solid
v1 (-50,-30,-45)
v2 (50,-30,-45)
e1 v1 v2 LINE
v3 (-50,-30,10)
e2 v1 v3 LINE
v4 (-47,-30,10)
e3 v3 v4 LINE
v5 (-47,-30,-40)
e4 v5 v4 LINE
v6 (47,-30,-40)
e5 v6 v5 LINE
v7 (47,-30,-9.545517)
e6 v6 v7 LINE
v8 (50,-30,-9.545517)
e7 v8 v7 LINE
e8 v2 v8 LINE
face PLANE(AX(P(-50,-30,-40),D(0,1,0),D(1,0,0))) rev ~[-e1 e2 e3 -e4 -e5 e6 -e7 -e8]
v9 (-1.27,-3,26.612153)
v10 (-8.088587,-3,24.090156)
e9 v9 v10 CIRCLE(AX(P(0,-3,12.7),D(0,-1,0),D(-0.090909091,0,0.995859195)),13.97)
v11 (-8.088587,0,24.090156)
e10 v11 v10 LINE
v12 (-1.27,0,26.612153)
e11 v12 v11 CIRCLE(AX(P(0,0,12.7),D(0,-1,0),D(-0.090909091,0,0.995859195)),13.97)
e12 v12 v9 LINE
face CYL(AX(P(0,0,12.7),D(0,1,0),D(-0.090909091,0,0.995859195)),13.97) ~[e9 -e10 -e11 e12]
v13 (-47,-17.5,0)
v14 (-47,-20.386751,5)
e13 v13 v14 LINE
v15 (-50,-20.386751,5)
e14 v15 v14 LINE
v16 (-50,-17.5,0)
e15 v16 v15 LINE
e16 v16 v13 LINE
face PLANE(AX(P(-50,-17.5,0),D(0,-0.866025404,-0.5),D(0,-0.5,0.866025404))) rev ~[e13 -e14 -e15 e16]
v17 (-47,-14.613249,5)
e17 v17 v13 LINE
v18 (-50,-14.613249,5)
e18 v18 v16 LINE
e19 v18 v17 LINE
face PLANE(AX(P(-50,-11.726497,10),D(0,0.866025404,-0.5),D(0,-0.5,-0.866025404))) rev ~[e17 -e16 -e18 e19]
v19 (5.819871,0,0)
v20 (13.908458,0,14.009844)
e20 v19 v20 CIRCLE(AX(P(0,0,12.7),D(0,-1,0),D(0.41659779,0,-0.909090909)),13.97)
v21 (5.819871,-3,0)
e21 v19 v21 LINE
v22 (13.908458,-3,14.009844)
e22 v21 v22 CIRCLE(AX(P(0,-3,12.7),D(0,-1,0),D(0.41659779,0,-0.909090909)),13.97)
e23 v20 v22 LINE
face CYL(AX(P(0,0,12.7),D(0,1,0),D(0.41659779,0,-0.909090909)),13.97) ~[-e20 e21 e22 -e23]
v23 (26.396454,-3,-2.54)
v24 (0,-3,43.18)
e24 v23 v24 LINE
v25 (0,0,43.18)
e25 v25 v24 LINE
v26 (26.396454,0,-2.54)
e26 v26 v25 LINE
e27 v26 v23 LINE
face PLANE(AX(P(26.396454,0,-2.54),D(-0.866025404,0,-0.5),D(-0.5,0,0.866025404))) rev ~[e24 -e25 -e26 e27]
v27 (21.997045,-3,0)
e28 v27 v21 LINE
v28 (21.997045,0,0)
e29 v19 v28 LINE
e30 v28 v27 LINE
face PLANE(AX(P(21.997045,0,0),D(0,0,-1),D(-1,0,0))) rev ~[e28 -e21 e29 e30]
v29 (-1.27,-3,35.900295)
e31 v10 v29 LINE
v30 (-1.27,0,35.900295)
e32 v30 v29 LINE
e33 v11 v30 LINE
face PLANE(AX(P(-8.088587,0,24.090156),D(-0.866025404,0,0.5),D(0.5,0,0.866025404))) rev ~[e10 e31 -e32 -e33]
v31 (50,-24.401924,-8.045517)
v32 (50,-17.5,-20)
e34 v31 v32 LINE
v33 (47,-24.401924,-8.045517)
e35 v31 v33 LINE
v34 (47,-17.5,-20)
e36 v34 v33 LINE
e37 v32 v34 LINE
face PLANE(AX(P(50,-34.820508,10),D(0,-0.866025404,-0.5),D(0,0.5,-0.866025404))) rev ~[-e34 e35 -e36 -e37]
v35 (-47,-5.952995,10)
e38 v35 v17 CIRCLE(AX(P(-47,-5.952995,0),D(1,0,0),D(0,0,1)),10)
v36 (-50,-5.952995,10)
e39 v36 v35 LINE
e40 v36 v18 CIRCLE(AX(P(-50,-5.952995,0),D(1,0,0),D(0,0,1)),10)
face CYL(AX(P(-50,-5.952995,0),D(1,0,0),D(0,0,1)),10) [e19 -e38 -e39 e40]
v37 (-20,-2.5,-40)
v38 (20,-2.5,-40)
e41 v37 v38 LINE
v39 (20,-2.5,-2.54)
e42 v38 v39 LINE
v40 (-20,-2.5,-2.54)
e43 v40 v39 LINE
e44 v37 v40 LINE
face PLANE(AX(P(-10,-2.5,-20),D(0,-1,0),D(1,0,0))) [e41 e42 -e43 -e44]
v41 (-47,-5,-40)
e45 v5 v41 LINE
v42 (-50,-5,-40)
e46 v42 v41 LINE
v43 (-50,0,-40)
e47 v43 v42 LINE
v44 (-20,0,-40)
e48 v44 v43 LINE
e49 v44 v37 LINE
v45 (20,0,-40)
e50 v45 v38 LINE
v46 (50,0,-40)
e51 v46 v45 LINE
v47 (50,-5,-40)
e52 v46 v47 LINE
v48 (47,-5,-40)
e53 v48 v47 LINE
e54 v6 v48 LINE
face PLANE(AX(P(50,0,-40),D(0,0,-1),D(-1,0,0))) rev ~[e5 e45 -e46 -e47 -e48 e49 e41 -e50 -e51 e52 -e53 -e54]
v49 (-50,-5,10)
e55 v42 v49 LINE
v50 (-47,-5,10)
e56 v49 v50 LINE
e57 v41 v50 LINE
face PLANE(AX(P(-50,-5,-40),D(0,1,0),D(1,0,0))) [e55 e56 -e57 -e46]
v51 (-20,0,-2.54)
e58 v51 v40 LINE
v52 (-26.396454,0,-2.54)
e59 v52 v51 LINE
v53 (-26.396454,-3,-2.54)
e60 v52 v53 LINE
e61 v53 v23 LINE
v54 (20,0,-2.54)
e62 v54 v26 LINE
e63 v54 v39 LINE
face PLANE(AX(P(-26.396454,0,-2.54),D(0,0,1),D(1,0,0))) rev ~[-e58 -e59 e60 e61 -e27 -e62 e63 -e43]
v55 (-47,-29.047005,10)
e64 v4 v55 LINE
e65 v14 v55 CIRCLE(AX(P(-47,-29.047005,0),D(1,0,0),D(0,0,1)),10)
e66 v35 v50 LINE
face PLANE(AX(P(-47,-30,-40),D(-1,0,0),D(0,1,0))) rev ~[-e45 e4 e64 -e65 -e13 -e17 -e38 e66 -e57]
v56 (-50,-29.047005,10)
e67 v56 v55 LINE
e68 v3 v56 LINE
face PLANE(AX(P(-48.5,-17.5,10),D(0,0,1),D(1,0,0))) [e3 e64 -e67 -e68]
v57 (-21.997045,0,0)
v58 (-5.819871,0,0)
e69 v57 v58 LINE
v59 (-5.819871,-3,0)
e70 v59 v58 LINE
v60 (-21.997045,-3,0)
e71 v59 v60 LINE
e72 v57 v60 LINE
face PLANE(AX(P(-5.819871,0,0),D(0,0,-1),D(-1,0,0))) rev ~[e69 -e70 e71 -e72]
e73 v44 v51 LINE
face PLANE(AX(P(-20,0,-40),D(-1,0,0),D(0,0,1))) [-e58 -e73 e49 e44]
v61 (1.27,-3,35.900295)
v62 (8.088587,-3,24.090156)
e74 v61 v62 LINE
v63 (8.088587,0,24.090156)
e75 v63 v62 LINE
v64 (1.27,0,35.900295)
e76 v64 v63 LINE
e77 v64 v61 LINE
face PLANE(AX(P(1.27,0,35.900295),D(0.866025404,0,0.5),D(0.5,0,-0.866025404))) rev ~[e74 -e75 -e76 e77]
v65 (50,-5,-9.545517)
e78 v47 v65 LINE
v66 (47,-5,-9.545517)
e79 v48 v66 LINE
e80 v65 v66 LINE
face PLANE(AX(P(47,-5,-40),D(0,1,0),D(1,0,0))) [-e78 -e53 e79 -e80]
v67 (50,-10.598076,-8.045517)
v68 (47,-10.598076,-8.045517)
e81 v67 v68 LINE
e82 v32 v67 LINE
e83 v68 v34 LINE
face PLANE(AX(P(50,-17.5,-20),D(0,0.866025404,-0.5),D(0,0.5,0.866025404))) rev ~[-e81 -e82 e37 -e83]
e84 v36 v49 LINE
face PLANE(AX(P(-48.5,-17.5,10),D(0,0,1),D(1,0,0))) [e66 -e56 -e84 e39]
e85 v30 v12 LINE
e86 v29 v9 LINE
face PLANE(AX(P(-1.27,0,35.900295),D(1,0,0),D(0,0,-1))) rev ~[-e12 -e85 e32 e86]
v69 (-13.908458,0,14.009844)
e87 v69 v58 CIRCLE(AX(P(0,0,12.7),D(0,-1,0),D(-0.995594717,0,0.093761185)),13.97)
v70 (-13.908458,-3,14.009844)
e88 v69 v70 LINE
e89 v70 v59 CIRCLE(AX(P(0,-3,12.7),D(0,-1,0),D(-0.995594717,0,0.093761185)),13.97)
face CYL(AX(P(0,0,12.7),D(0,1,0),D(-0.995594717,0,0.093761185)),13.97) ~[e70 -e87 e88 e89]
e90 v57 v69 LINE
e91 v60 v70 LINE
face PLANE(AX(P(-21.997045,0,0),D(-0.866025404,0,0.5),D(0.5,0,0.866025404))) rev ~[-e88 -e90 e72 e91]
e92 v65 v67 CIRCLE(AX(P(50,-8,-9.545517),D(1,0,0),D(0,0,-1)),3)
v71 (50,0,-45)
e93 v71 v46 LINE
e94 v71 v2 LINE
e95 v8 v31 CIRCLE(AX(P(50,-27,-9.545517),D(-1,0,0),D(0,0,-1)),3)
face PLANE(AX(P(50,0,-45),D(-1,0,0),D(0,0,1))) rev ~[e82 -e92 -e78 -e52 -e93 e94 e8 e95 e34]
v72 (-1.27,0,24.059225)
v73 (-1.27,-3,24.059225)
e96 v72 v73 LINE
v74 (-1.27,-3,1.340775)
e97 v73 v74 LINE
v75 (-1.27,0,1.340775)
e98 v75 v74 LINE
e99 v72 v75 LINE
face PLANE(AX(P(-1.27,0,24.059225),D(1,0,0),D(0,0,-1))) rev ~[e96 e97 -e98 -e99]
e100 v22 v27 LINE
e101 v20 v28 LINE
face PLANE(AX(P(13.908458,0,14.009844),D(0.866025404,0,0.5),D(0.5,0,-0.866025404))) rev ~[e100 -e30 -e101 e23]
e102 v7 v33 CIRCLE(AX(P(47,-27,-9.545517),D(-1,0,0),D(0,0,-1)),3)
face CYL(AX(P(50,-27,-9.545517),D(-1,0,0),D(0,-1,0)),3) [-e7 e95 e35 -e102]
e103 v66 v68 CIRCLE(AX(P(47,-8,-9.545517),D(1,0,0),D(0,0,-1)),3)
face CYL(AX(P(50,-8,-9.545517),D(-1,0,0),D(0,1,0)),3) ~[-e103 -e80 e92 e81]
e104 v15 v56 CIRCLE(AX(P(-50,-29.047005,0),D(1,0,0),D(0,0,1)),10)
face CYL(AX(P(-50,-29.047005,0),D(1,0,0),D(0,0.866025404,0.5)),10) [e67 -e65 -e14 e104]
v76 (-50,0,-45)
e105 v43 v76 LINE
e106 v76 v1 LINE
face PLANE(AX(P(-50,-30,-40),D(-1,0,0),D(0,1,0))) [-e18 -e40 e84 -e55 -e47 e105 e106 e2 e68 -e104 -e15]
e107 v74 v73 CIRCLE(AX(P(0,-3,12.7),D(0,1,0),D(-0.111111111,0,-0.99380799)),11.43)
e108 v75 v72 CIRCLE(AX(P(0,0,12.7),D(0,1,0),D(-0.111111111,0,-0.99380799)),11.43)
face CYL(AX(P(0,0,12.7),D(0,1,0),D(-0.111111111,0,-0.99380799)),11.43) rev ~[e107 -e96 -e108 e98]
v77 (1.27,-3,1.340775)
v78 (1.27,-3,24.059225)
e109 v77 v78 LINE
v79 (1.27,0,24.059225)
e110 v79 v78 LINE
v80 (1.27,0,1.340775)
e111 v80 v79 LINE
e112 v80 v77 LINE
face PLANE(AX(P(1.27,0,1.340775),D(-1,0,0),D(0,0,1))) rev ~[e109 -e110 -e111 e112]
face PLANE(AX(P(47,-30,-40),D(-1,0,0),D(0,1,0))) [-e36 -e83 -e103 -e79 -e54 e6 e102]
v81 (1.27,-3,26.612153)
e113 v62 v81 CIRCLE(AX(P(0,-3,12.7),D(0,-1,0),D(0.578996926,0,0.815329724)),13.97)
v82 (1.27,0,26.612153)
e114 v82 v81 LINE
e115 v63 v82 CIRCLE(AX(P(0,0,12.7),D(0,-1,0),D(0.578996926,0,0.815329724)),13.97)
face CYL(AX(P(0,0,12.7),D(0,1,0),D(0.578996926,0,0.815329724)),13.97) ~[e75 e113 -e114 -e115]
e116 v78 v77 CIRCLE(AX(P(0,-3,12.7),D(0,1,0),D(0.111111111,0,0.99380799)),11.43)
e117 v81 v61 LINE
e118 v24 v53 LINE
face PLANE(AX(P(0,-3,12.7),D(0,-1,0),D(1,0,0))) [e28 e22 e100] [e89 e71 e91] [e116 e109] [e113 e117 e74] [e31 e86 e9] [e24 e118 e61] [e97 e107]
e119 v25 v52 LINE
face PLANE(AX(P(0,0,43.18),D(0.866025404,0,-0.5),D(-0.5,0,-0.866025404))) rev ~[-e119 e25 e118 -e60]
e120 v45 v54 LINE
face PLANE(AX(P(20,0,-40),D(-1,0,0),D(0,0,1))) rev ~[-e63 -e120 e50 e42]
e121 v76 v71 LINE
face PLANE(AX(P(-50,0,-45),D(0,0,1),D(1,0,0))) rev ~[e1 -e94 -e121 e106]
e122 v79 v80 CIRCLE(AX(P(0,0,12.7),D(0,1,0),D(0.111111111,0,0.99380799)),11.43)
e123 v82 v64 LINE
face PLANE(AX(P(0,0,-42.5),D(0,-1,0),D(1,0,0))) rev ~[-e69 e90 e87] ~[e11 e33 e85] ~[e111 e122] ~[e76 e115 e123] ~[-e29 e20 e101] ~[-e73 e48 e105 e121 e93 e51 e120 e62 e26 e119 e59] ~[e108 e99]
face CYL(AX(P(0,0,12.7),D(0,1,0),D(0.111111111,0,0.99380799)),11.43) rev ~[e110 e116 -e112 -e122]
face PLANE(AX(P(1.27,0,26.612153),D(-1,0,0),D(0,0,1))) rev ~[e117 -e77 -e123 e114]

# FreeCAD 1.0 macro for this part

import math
import FreeCAD as App
import Part
import Sketcher
Q = App.Units.Quantity


def edges_at(feature, points):
    """Names of the edges that pass closest to the given points."""
    edges = feature.Shape.Edges
    near = lambda p: min(range(len(edges)), key=lambda i: edges[i].distToShape(Part.Vertex(*p))[0])
    return sorted({f"Edge{near(p) + 1}" for p in points})

doc = App.newDocument("Part")
params = doc.addObject("Spreadsheet::Sheet", "Params")
for row, (alias, value) in enumerate([
    ("sketch1_radius", "13.97 mm"),
    ("sketch1_radius2", "11.43 mm"),
    ("pad1_length", "3 mm"),
    ("sketch2_width", "40 mm"),
    ("pad2_length", "2.5 mm"),
    ("sketch3_width", "100 mm"),
    ("sketch3_height", "5 mm"),
    ("pad3_length", "30 mm"),
    ("sketch4_width", "3 mm"),
    ("sketch4_height", "25 mm"),
    ("pad4_length", "50 mm"),
    ("pocket1_length", "25 mm"),
    ("pocket2_length", "10 mm"),
    ("fillet_radius", "10 mm"),
    ("fillet2_radius", "3 mm"),
], start=1):
    params.set(f"A{row}", alias)
    params.set(f"B{row}", "=" + value)
    params.setAlias(f"B{row}", alias)

body = doc.addObject("PartDesign::Body", "Body")

sketch1 = body.newObject("Sketcher::SketchObject", "Sketch")
sketch1.AttachmentSupport = (doc.getObject("XZ_Plane"), [""])
sketch1.MapMode = "FlatFace"
sketch1.addGeometry([
    Part.LineSegment(App.Vector(-26, -3, 0), App.Vector(26, -3, 0)),
    Part.LineSegment(App.Vector(26, -3, 0), App.Vector(0, 43, 0)),
    Part.LineSegment(App.Vector(0, 43, 0), App.Vector(-26, -3, 0)),
    Part.ArcOfCircle(Part.Circle(App.Vector(0, 13, 0), App.Vector(0, 0, 1), 14), math.radians(175), math.radians(245)),
    Part.LineSegment(App.Vector(-6, 0, 0), App.Vector(-22, 0, 0)),
    Part.LineSegment(App.Vector(-22, 0, 0), App.Vector(-14, 14, 0)),
    Part.LineSegment(App.Vector(-1, 24, 0), App.Vector(-1, 1, 0)),
    Part.ArcOfCircle(Part.Circle(App.Vector(0, 13, 0), App.Vector(0, 0, 1), 11), math.radians(96), math.radians(264)),
    Part.ArcOfCircle(Part.Circle(App.Vector(0, 13, 0), App.Vector(0, 0, 1), 14), math.radians(-65), math.radians(5)),
    Part.LineSegment(App.Vector(14, 14, 0), App.Vector(22, 0, 0)),
    Part.LineSegment(App.Vector(22, 0, 0), App.Vector(6, 0, 0)),
    Part.ArcOfCircle(Part.Circle(App.Vector(0, 13, 0), App.Vector(0, 0, 1), 11), math.radians(-84), math.radians(84)),
    Part.LineSegment(App.Vector(1, 1, 0), App.Vector(1, 24, 0)),
    Part.ArcOfCircle(Part.Circle(App.Vector(0, 13, 0), App.Vector(0, 0, 1), 14), math.radians(95), math.radians(125)),
    Part.LineSegment(App.Vector(-8, 24, 0), App.Vector(-1, 36, 0)),
    Part.LineSegment(App.Vector(-1, 36, 0), App.Vector(-1, 27, 0)),
    Part.ArcOfCircle(Part.Circle(App.Vector(0, 13, 0), App.Vector(0, 0, 1), 14), math.radians(55), math.radians(85)),
    Part.LineSegment(App.Vector(1, 27, 0), App.Vector(1, 36, 0)),
    Part.LineSegment(App.Vector(1, 36, 0), App.Vector(8, 24, 0)),
], False)
sketch1.addConstraint([
    Sketcher.Constraint("Coincident", 0, 2, 1, 1),
    Sketcher.Constraint("Coincident", 1, 2, 2, 1),
    Sketcher.Constraint("Coincident", 2, 2, 0, 1),
    Sketcher.Constraint("Coincident", 3, 2, 4, 1),
    Sketcher.Constraint("Coincident", 4, 2, 5, 1),
    Sketcher.Constraint("Coincident", 5, 2, 3, 1),
    Sketcher.Constraint("Coincident", 6, 1, 7, 1),
    Sketcher.Constraint("Coincident", 7, 2, 6, 2),
    Sketcher.Constraint("Coincident", 8, 2, 9, 1),
    Sketcher.Constraint("Coincident", 9, 2, 10, 1),
    Sketcher.Constraint("Coincident", 10, 2, 8, 1),
    Sketcher.Constraint("Coincident", 11, 1, 12, 1),
    Sketcher.Constraint("Coincident", 12, 2, 11, 2),
    Sketcher.Constraint("Coincident", 13, 2, 14, 1),
    Sketcher.Constraint("Coincident", 14, 2, 15, 1),
    Sketcher.Constraint("Coincident", 15, 2, 13, 1),
    Sketcher.Constraint("Coincident", 16, 2, 17, 1),
    Sketcher.Constraint("Coincident", 17, 2, 18, 1),
    Sketcher.Constraint("Coincident", 18, 2, 16, 1),
    Sketcher.Constraint("Horizontal", 0),
    Sketcher.Constraint("Horizontal", 4),
    Sketcher.Constraint("Vertical", 6),
    Sketcher.Constraint("Horizontal", 10),
    Sketcher.Constraint("Vertical", 12),
    Sketcher.Constraint("Vertical", 15),
    Sketcher.Constraint("Vertical", 17),
    Sketcher.Constraint("Coincident", 7, 3, 3, 3),
    Sketcher.Constraint("Coincident", 8, 3, 3, 3),
    Sketcher.Constraint("Coincident", 11, 3, 3, 3),
    Sketcher.Constraint("Coincident", 13, 3, 3, 3),
    Sketcher.Constraint("Coincident", 16, 3, 3, 3),
    Sketcher.Constraint("Equal", 3, 8),
    Sketcher.Constraint("Equal", 7, 11),
    Sketcher.Constraint("Equal", 8, 13),
    Sketcher.Constraint("Equal", 13, 16),
    Sketcher.Constraint("Symmetric", 4, 2, 9, 2, -1, 1),
    Sketcher.Constraint("Symmetric", 5, 2, 8, 2, -2),
    Sketcher.Constraint("Symmetric", 14, 2, 17, 2, -2),
    Sketcher.Constraint("PointOnObject", 1, 2, -2),
    Sketcher.Constraint("PointOnObject", 3, 2, -1),
    Sketcher.Constraint("Parallel", 2, 5),
    Sketcher.Constraint("Parallel", 1, 9),
    Sketcher.Constraint("Parallel", 5, 14),
    Sketcher.Constraint("Parallel", 9, 18),
    Sketcher.Constraint("Horizontal", 7, 2, 11, 1),
    Sketcher.Constraint("Vertical", 7, 2, 14, 2),
    Sketcher.Constraint("Angle", 1, Q("120 deg")),
    Sketcher.Constraint("Radius", 3, 13.97),
    Sketcher.Constraint("Radius", 7, 11.43),
    Sketcher.Constraint("DistanceY", -1, 1, 3, 3, 12.7),
    Sketcher.Constraint("DistanceY", 0, 2, -1, 1, 2.54),
    Sketcher.Constraint("DistanceY", -1, 1, 1, 2, 43.18),
    Sketcher.Constraint("DistanceX", 6, 1, -1, 1, 1.27),
    Sketcher.Constraint("DistanceX", 4, 2, 4, 1, 16.177174),
    Sketcher.Constraint("DistanceY", 15, 2, 15, 1, 9.288143),
])
sketch1.setExpression("Constraints[47]", "Params.sketch1_radius")
sketch1.setExpression("Constraints[48]", "Params.sketch1_radius2")
pad1 = body.newObject("PartDesign::Pad", "Pad")
pad1.Profile = sketch1
pad1.setExpression("Length", "Params.pad1_length")

sketch2 = body.newObject("Sketcher::SketchObject", "Sketch001")
sketch2.AttachmentSupport = (doc.getObject("XZ_Plane"), [""])
sketch2.MapMode = "FlatFace"
sketch2.addGeometry([
    Part.LineSegment(App.Vector(-20, 0, 0), App.Vector(-20, -40, 0)),
    Part.LineSegment(App.Vector(-20, -40, 0), App.Vector(20, -40, 0)),
    Part.LineSegment(App.Vector(20, -40, 0), App.Vector(20, 0, 0)),
    Part.LineSegment(App.Vector(20, 0, 0), App.Vector(-20, 0, 0)),
], False)
sketch2.addConstraint([
    Sketcher.Constraint("Coincident", 0, 2, 1, 1),
    Sketcher.Constraint("Coincident", 1, 2, 2, 1),
    Sketcher.Constraint("Coincident", 2, 2, 3, 1),
    Sketcher.Constraint("Coincident", 3, 2, 0, 1),
    Sketcher.Constraint("Vertical", 0),
    Sketcher.Constraint("Horizontal", 1),
    Sketcher.Constraint("Vertical", 2),
    Sketcher.Constraint("Horizontal", 3),
    Sketcher.Constraint("Symmetric", 2, 2, 3, 2, -1, 1),
    Sketcher.Constraint("Equal", 3, 0),
    Sketcher.Constraint("DistanceX", 1, 1, 1, 2, 40.0),
])
sketch2.setExpression("Constraints[10]", "Params.sketch2_width")
pad2 = body.newObject("PartDesign::Pad", "Pad001")
pad2.Profile = sketch2
pad2.setExpression("Length", "Params.pad2_length")

sketch3 = body.newObject("Sketcher::SketchObject", "Sketch002")
sketch3.AttachmentSupport = (doc.getObject("XZ_Plane"), [""])
sketch3.MapMode = "FlatFace"
sketch3.addGeometry([
    Part.LineSegment(App.Vector(-50, -40, 0), App.Vector(-50, -45, 0)),
    Part.LineSegment(App.Vector(-50, -45, 0), App.Vector(50, -45, 0)),
    Part.LineSegment(App.Vector(50, -45, 0), App.Vector(50, -40, 0)),
    Part.LineSegment(App.Vector(50, -40, 0), App.Vector(-50, -40, 0)),
], False)
sketch3.addConstraint([
    Sketcher.Constraint("Coincident", 0, 2, 1, 1),
    Sketcher.Constraint("Coincident", 1, 2, 2, 1),
    Sketcher.Constraint("Coincident", 2, 2, 3, 1),
    Sketcher.Constraint("Coincident", 3, 2, 0, 1),
    Sketcher.Constraint("Vertical", 0),
    Sketcher.Constraint("Horizontal", 1),
    Sketcher.Constraint("Vertical", 2),
    Sketcher.Constraint("Horizontal", 3),
    Sketcher.Constraint("DistanceX", 1, 1, 1, 2, 100.0),
    Sketcher.Constraint("DistanceY", 0, 2, 0, 1, 5.0),
    Sketcher.Constraint("DistanceX", 0, 2, -1, 1, 50.0),
    Sketcher.Constraint("DistanceY", 0, 2, -1, 1, 45.0),
])
sketch3.setExpression("Constraints[8]", "Params.sketch3_width")
sketch3.setExpression("Constraints[9]", "Params.sketch3_height")
pad3 = body.newObject("PartDesign::Pad", "Pad002")
pad3.Profile = sketch3
pad3.setExpression("Length", "Params.pad3_length")

sketch4 = body.newObject("Sketcher::SketchObject", "Sketch003")
sketch4.AttachmentSupport = (doc.getObject("XY_Plane"), [""])
sketch4.MapMode = "FlatFace"
sketch4.AttachmentOffset = App.Placement(App.Vector(0, 0, -40), App.Rotation())
sketch4.addGeometry([
    Part.LineSegment(App.Vector(-50, -5, 0), App.Vector(-50, -30, 0)),
    Part.LineSegment(App.Vector(-50, -30, 0), App.Vector(-47, -30, 0)),
    Part.LineSegment(App.Vector(-47, -30, 0), App.Vector(-47, -5, 0)),
    Part.LineSegment(App.Vector(-47, -5, 0), App.Vector(-50, -5, 0)),
    Part.LineSegment(App.Vector(47, -5, 0), App.Vector(47, -30, 0)),
    Part.LineSegment(App.Vector(47, -30, 0), App.Vector(50, -30, 0)),
    Part.LineSegment(App.Vector(50, -30, 0), App.Vector(50, -5, 0)),
    Part.LineSegment(App.Vector(50, -5, 0), App.Vector(47, -5, 0)),
], False)
sketch4.addConstraint([
    Sketcher.Constraint("Coincident", 0, 2, 1, 1),
    Sketcher.Constraint("Coincident", 1, 2, 2, 1),
    Sketcher.Constraint("Coincident", 2, 2, 3, 1),
    Sketcher.Constraint("Coincident", 3, 2, 0, 1),
    Sketcher.Constraint("Coincident", 4, 2, 5, 1),
    Sketcher.Constraint("Coincident", 5, 2, 6, 1),
    Sketcher.Constraint("Coincident", 6, 2, 7, 1),
    Sketcher.Constraint("Coincident", 7, 2, 4, 1),
    Sketcher.Constraint("Vertical", 0),
    Sketcher.Constraint("Horizontal", 1),
    Sketcher.Constraint("Vertical", 2),
    Sketcher.Constraint("Horizontal", 3),
    Sketcher.Constraint("Vertical", 4),
    Sketcher.Constraint("Horizontal", 5),
    Sketcher.Constraint("Vertical", 6),
    Sketcher.Constraint("Horizontal", 7),
    Sketcher.Constraint("Symmetric", 1, 2, 4, 2, -2),
    Sketcher.Constraint("Symmetric", 3, 2, 6, 2, -2),
    Sketcher.Constraint("DistanceX", 1, 1, 1, 2, 3.0),
    Sketcher.Constraint("DistanceY", 0, 2, 0, 1, 25.0),
    Sketcher.Constraint("DistanceX", 0, 2, -1, 1, 50.0),
    Sketcher.Constraint("DistanceY", 0, 2, -1, 1, 30.0),
])
sketch4.setExpression("Constraints[18]", "Params.sketch4_width")
sketch4.setExpression("Constraints[19]", "Params.sketch4_height")
pad4 = body.newObject("PartDesign::Pad", "Pad003")
pad4.Profile = sketch4
pad4.setExpression("Length", "Params.pad4_length")

sketch5 = body.newObject("Sketcher::SketchObject", "Sketch004")
sketch5.AttachmentSupport = (doc.getObject("YZ_Plane"), [""])
sketch5.MapMode = "FlatFace"
sketch5.AttachmentOffset = App.Placement(App.Vector(0, 0, -50), App.Rotation())
sketch5.addGeometry([
    Part.LineSegment(App.Vector(-23, 10, 0), App.Vector(-12, 10, 0)),
    Part.LineSegment(App.Vector(-12, 10, 0), App.Vector(-18, 0, 0)),
    Part.LineSegment(App.Vector(-18, 0, 0), App.Vector(-23, 10, 0)),
], False)
sketch5.addConstraint([
    Sketcher.Constraint("Coincident", 0, 2, 1, 1),
    Sketcher.Constraint("Coincident", 1, 2, 2, 1),
    Sketcher.Constraint("Coincident", 2, 2, 0, 1),
    Sketcher.Constraint("Horizontal", 0),
    Sketcher.Constraint("PointOnObject", 1, 2, -1),
    Sketcher.Constraint("Equal", 1, 2),
    Sketcher.Constraint("Angle", 1, Q("-120 deg")),
    Sketcher.Constraint("DistanceY", -1, 1, 0, 2, 10.0),
    Sketcher.Constraint("DistanceX", 1, 2, -1, 1, 17.5),
])
pocket1 = body.newObject("PartDesign::Pocket", "Pocket")
pocket1.Profile = sketch5
pocket1.setExpression("Length", "Params.pocket1_length")
pocket1.Reversed = True

sketch6 = body.newObject("Sketcher::SketchObject", "Sketch005")
sketch6.AttachmentSupport = (doc.getObject("YZ_Plane"), [""])
sketch6.MapMode = "FlatFace"
sketch6.AttachmentOffset = App.Placement(App.Vector(0, 0, 50), App.Rotation())
sketch6.addGeometry([
    Part.LineSegment(App.Vector(-35, 10, 0), App.Vector(-18, -20, 0)),
    Part.LineSegment(App.Vector(-18, -20, 0), App.Vector(0, 10, 0)),
    Part.LineSegment(App.Vector(0, 10, 0), App.Vector(-35, 10, 0)),
], False)
sketch6.addConstraint([
    Sketcher.Constraint("Coincident", 0, 2, 1, 1),
    Sketcher.Constraint("Coincident", 1, 2, 2, 1),
    Sketcher.Constraint("Coincident", 2, 2, 0, 1),
    Sketcher.Constraint("Horizontal", 2),
    Sketcher.Constraint("Equal", 0, 1),
    Sketcher.Constraint("Angle", 0, Q("-60 deg")),
    Sketcher.Constraint("DistanceY", 0, 2, -1, 1, 20.0),
    Sketcher.Constraint("DistanceY", -1, 1, 1, 2, 10.0),
    Sketcher.Constraint("DistanceX", 0, 2, -1, 1, 17.5),
])
pocket2 = body.newObject("PartDesign::Pocket", "Pocket001")
pocket2.Profile = sketch6
pocket2.setExpression("Length", "Params.pocket2_length")
doc.recompute()

fillet = body.newObject("PartDesign::Fillet", "Fillet")
fillet.Base = (pocket2, edges_at(pocket2, [(-48.5, -11.726, 10), (-48.5, -23.274, 10)]))
fillet.setExpression("Radius", "Params.fillet_radius")
doc.recompute()

fillet2 = body.newObject("PartDesign::Fillet", "Fillet001")
fillet2.Base = (fillet, edges_at(fillet, [(48.5, -30, 1.651), (48.5, -5, 1.651)]))
fillet2.setExpression("Radius", "Params.fillet2_radius")

doc.recompute()
